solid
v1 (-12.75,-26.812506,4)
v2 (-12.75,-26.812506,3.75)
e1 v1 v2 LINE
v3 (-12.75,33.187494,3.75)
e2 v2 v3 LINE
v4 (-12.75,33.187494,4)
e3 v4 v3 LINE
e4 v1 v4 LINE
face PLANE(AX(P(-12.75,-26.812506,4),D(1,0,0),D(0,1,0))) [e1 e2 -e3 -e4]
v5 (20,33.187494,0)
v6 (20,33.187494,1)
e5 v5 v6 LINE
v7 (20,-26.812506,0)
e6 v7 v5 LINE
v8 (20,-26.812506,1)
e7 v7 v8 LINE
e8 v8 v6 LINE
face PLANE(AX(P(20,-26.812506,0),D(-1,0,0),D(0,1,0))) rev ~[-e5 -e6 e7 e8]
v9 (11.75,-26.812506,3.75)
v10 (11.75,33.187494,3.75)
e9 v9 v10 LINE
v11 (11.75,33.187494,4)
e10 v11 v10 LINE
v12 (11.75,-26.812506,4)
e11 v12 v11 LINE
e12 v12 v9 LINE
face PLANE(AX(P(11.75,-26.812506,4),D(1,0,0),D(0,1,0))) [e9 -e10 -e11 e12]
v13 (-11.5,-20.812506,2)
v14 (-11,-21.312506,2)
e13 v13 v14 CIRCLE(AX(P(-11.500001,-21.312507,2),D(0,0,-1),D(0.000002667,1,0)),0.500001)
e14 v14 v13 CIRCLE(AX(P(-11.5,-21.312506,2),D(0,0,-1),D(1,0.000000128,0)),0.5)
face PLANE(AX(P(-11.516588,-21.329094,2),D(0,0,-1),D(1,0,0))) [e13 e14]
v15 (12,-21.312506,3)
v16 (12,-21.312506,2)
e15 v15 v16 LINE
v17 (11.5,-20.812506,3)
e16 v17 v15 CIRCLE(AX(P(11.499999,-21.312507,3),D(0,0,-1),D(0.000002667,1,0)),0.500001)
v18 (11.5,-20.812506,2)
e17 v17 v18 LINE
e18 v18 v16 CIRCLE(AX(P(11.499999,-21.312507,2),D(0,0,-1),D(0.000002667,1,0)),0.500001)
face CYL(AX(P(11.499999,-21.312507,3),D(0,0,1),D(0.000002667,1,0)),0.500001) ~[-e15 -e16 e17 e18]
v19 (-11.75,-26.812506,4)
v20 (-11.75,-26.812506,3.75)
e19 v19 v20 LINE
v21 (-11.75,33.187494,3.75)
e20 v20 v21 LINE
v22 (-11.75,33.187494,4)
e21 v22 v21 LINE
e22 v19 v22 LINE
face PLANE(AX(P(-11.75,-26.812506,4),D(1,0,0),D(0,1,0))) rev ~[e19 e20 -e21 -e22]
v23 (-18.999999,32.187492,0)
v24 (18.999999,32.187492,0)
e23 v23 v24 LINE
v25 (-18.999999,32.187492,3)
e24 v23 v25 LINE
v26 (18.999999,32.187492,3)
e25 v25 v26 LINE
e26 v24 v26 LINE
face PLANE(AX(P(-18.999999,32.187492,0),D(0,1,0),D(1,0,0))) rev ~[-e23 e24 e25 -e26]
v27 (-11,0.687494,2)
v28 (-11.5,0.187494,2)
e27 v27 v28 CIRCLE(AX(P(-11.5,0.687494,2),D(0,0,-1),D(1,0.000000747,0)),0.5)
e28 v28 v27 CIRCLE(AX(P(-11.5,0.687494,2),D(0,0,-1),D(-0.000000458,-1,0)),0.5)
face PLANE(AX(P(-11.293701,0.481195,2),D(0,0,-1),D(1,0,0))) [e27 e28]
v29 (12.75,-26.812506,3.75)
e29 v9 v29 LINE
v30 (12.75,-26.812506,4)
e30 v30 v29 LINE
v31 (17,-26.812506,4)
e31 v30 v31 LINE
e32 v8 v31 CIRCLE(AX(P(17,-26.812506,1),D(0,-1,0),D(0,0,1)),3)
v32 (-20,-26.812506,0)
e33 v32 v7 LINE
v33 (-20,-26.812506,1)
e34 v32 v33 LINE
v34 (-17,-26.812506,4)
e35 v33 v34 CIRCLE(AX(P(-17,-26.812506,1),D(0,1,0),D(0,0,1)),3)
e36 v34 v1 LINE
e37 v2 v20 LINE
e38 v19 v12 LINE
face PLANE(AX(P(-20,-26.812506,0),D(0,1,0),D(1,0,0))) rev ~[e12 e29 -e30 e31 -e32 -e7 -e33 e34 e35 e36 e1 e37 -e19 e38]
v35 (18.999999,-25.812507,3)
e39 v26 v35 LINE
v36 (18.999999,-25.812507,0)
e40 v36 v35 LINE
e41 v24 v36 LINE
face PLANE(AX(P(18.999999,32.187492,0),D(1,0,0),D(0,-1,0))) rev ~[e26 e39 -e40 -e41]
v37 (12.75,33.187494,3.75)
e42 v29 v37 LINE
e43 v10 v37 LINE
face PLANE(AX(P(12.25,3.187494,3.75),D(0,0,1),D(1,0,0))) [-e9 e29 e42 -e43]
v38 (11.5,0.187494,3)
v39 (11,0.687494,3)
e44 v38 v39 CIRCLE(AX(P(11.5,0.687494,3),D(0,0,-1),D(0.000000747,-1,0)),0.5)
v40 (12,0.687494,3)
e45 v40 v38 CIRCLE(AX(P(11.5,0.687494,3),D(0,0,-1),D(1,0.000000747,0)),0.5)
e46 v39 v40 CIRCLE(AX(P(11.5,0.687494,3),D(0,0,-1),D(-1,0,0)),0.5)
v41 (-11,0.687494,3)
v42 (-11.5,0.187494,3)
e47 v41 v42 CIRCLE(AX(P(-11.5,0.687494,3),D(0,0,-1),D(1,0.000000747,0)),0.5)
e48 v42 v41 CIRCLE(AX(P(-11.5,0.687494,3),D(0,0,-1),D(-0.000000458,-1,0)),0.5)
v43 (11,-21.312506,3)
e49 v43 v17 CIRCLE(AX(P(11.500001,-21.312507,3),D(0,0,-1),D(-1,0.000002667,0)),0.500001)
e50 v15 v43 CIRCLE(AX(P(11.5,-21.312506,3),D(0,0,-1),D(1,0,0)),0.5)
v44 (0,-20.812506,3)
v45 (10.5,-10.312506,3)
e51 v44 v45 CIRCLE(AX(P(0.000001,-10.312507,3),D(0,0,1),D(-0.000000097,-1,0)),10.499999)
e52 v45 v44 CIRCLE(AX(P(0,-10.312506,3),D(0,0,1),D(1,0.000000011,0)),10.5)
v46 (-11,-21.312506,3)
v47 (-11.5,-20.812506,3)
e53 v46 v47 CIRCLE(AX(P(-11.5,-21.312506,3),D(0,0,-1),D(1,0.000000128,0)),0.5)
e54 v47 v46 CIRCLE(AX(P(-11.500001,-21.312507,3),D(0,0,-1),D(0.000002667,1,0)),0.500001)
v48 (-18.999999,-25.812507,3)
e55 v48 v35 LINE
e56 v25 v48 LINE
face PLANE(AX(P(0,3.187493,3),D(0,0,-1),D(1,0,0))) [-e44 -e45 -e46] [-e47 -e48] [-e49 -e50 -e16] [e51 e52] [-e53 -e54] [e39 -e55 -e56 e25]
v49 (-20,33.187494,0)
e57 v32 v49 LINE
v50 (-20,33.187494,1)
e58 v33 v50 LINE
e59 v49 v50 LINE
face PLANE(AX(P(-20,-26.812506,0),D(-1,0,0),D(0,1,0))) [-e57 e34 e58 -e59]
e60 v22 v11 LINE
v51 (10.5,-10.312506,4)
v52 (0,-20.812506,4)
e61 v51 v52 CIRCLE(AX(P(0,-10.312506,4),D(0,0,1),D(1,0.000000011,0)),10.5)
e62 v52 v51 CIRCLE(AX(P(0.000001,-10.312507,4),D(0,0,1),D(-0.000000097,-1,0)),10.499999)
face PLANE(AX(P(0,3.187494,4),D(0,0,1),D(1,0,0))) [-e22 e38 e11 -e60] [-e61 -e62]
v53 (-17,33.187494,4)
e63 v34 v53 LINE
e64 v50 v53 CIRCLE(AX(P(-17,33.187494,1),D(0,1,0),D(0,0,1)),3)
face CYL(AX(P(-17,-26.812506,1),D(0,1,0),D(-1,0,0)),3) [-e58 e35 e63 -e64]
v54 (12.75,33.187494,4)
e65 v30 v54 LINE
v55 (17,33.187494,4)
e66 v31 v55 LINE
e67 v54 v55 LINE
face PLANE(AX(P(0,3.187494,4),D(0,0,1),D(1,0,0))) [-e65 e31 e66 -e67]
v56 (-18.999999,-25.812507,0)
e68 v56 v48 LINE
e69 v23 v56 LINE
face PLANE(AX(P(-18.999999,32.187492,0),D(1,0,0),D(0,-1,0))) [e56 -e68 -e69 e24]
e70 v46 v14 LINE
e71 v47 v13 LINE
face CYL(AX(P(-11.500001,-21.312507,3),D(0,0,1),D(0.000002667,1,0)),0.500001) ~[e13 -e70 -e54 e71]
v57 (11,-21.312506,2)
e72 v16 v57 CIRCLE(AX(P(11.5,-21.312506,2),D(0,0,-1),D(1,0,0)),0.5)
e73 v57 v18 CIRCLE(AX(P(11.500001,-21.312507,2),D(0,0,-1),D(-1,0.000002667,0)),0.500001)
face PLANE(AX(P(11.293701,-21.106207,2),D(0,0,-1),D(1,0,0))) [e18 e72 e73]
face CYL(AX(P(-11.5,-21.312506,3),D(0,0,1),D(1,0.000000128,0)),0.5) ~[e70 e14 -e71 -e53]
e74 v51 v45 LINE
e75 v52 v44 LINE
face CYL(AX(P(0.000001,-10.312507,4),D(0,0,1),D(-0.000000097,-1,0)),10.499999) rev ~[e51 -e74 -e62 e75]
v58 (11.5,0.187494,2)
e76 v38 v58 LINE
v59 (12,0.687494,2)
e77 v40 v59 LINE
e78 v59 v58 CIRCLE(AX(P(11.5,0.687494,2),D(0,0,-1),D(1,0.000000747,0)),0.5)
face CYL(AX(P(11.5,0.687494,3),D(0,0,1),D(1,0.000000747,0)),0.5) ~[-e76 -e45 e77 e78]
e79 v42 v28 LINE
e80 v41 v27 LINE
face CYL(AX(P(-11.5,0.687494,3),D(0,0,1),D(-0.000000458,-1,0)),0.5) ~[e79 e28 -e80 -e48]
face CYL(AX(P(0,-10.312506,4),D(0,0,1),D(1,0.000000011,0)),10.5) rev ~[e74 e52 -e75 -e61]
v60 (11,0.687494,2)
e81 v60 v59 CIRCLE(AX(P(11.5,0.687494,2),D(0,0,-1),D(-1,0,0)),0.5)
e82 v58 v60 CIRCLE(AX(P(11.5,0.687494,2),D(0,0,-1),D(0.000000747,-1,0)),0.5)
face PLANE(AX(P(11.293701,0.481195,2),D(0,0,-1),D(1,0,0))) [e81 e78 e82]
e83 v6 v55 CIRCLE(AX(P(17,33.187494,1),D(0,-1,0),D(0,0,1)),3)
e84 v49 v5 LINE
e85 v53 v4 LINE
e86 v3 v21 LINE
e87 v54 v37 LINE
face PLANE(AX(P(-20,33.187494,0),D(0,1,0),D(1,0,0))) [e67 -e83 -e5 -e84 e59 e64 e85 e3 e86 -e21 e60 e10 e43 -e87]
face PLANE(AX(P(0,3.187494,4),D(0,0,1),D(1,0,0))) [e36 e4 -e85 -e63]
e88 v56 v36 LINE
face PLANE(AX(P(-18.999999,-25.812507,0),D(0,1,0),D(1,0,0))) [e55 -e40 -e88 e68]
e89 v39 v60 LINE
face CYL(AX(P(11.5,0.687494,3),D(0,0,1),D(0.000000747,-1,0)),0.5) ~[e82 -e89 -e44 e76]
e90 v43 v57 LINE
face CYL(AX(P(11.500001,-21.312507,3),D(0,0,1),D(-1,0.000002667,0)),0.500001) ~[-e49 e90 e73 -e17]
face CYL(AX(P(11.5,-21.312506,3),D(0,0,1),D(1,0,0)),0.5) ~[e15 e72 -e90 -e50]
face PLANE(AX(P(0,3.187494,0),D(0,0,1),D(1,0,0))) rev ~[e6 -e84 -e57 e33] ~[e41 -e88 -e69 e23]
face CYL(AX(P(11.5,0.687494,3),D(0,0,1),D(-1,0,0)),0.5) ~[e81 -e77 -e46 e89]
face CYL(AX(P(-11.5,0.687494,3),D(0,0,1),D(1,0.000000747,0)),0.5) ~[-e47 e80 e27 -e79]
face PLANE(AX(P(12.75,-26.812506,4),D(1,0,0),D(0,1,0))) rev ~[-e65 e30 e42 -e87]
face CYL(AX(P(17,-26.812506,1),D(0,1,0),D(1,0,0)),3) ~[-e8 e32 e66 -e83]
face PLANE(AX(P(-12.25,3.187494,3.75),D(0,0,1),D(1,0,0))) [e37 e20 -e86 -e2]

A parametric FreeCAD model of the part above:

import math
import FreeCAD as App
import Part
import Sketcher


def edges_at(feature, points):
    """Names of the edges that pass closest to the given points."""
    edges = feature.Shape.Edges
    near = lambda p: min(range(len(edges)), key=lambda i: edges[i].distToShape(Part.Vertex(*p))[0])
    return sorted({f"Edge{near(p) + 1}" for p in points})

doc = App.newDocument("Part")
params = doc.addObject("Spreadsheet::Sheet", "Params")
for row, (alias, value) in enumerate([
    ("sketch1_width", "40 mm"),
    ("sketch1_height", "60 mm"),
    ("pad1_length", "4 mm"),
    ("sketch2_width", "1 mm"),
    ("sketch2_height", "60 mm"),
    ("pocket1_length", "0.25 mm"),
    ("fillet_radius", "3 mm"),
    ("sketch3_radius", "10.499999 mm"),
    ("pocket2_length", "25 mm"),
    ("sketch4_height", "57.999999 mm"),
    ("pocket3_length", "3 mm"),
    ("sketch5_radius", "0.500001 mm"),
    ("pad2_length", "1 mm"),
], start=1):
    params.set(f"A{row}", alias)
    params.set(f"B{row}", "=" + value)
    params.setAlias(f"B{row}", alias)

body = doc.addObject("PartDesign::Body", "Body")

# Sketch on XY plane
sketch1 = body.newObject("Sketcher::SketchObject", "Sketch")
sketch1.AttachmentSupport = (doc.getObject("XY_Plane"), [""])
sketch1.MapMode = "FlatFace"
sketch1.addGeometry([
    Part.LineSegment(App.Vector(-20, 33, 0), App.Vector(-20, -27, 0)),
    Part.LineSegment(App.Vector(-20, -27, 0), App.Vector(20, -27, 0)),
    Part.LineSegment(App.Vector(20, -27, 0), App.Vector(20, 33, 0)),
    Part.LineSegment(App.Vector(20, 33, 0), App.Vector(-20, 33, 0)),
], False)
sketch1.addConstraint([
    Sketcher.Constraint("Coincident", 0, 2, 1, 1),
    Sketcher.Constraint("Coincident", 1, 2, 2, 1),
    Sketcher.Constraint("Coincident", 2, 2, 3, 1),
    Sketcher.Constraint("Coincident", 3, 2, 0, 1),
    Sketcher.Constraint("Vertical", 0),
    Sketcher.Constraint("Horizontal", 1),
    Sketcher.Constraint("Vertical", 2),
    Sketcher.Constraint("Horizontal", 3),
    Sketcher.Constraint("DistanceX", 1, 1, 1, 2, 40.0),
    Sketcher.Constraint("DistanceY", 0, 2, 0, 1, 60.0),
    Sketcher.Constraint("DistanceX", 0, 2, -1, 1, 20.0),
    Sketcher.Constraint("DistanceY", 0, 2, -1, 1, 26.812506),
])
sketch1.setExpression("Constraints[8]", "Params.sketch1_width")
sketch1.setExpression("Constraints[9]", "Params.sketch1_height")
pad1 = body.newObject("PartDesign::Pad", "Pad")
pad1.Profile = sketch1
pad1.setExpression("Length", "Params.pad1_length")

# Sketch on XY plane
sketch2 = body.newObject("Sketcher::SketchObject", "Sketch001")
sketch2.AttachmentSupport = (doc.getObject("XY_Plane"), [""])
sketch2.MapMode = "FlatFace"
sketch2.AttachmentOffset = App.Placement(App.Vector(0, 0, 4), App.Rotation())
sketch2.addGeometry([
    Part.LineSegment(App.Vector(-12.8, 33.2, 0), App.Vector(-12.8, -26.8, 0)),  # 0
    Part.LineSegment(App.Vector(-12.8, -26.8, 0), App.Vector(-11.8, -26.8, 0)),  # 1
    Part.LineSegment(App.Vector(-11.8, -26.8, 0), App.Vector(-11.8, 33.2, 0)),  # 2
    Part.LineSegment(App.Vector(-11.8, 33.2, 0), App.Vector(-12.8, 33.2, 0)),  # 3
    Part.LineSegment(App.Vector(11.8, 33.2, 0), App.Vector(11.8, -26.8, 0)),  # 4
    Part.LineSegment(App.Vector(11.8, -26.8, 0), App.Vector(12.8, -26.8, 0)),  # 5
    Part.LineSegment(App.Vector(12.8, -26.8, 0), App.Vector(12.8, 33.2, 0)),  # 6
    Part.LineSegment(App.Vector(12.8, 33.2, 0), App.Vector(11.8, 33.2, 0)),  # 7
], False)
sketch2.addConstraint([
    Sketcher.Constraint("Coincident", 0, 2, 1, 1),
    Sketcher.Constraint("Coincident", 1, 2, 2, 1),
    Sketcher.Constraint("Coincident", 2, 2, 3, 1),
    Sketcher.Constraint("Coincident", 3, 2, 0, 1),
    Sketcher.Constraint("Coincident", 4, 2, 5, 1),
    Sketcher.Constraint("Coincident", 5, 2, 6, 1),
    Sketcher.Constraint("Coincident", 6, 2, 7, 1),
    Sketcher.Constraint("Coincident", 7, 2, 4, 1),
    Sketcher.Constraint("Vertical", 0),
    Sketcher.Constraint("Horizontal", 1),
    Sketcher.Constraint("Vertical", 2),
    Sketcher.Constraint("Horizontal", 3),
    Sketcher.Constraint("Vertical", 4),
    Sketcher.Constraint("Horizontal", 5),
    Sketcher.Constraint("Vertical", 6),
    Sketcher.Constraint("Horizontal", 7),
    Sketcher.Constraint("Symmetric", 1, 2, 4, 2, -2),
    Sketcher.Constraint("Symmetric", 3, 2, 6, 2, -2),
    Sketcher.Constraint("DistanceX", 1, 1, 1, 2, 1.0),
    Sketcher.Constraint("DistanceY", 0, 2, 0, 1, 60.0),
    Sketcher.Constraint("DistanceX", 1, 2, 4, 2, 23.5),
    Sketcher.Constraint("DistanceY", 0, 2, -1, 1, 26.812506),
])
sketch2.setExpression("Constraints[18]", "Params.sketch2_width")
sketch2.setExpression("Constraints[19]", "Params.sketch2_height")
pocket1 = body.newObject("PartDesign::Pocket", "Pocket")
pocket1.Profile = sketch2
pocket1.setExpression("Length", "Params.pocket1_length")
doc.recompute()

fillet = body.newObject("PartDesign::Fillet", "Fillet")
fillet.Base = (pocket1, edges_at(pocket1, [(-20, 3.187, 4), (20, 3.187, 4)]))
fillet.setExpression("Radius", "Params.fillet_radius")

# Sketch on XY plane
sketch3 = body.newObject("Sketcher::SketchObject", "Sketch002")
sketch3.AttachmentSupport = (doc.getObject("XY_Plane"), [""])
sketch3.MapMode = "FlatFace"
sketch3.AttachmentOffset = App.Placement(App.Vector(0, 0, 4), App.Rotation())
sketch3.addGeometry([
    Part.ArcOfCircle(Part.Circle(App.Vector(0, -10, 0), App.Vector(0, 0, 1), 10), math.radians(-90), math.radians(0)),
    Part.ArcOfCircle(Part.Circle(App.Vector(0, -10, 0), App.Vector(0, 0, 1), 10), math.radians(0), math.radians(270)),
], False)
sketch3.addConstraint([
    Sketcher.Constraint("Tangent", 0, 1, 1, 2),
    Sketcher.Constraint("Coincident", 1, 1, 0, 2),
    Sketcher.Constraint("PointOnObject", 0, 3, -2),
    Sketcher.Constraint("PointOnObject", 0, 1, -2),
    Sketcher.Constraint("Horizontal", 0, 3, 1, 1),
    Sketcher.Constraint("Radius", 0, 10.499999),
    Sketcher.Constraint("DistanceY", 0, 3, -1, 1, 10.312507),
])
sketch3.setExpression("Constraints[5]", "Params.sketch3_radius")
pocket2 = body.newObject("PartDesign::Pocket", "Pocket001")
pocket2.Profile = sketch3
pocket2.setExpression("Length", "Params.pocket2_length")

# Sketch on XY plane
sketch4 = body.newObject("Sketcher::SketchObject", "Sketch003")
sketch4.AttachmentSupport = (doc.getObject("XY_Plane"), [""])
sketch4.MapMode = "FlatFace"
sketch4.addGeometry([
    Part.LineSegment(App.Vector(-19, -26, 0), App.Vector(-19, 32, 0)),
    Part.LineSegment(App.Vector(-19, 32, 0), App.Vector(19, 32, 0)),
    Part.LineSegment(App.Vector(19, 32, 0), App.Vector(19, -26, 0)),
    Part.LineSegment(App.Vector(19, -26, 0), App.Vector(-19, -26, 0)),
], False)
sketch4.addConstraint([
    Sketcher.Constraint("Coincident", 0, 2, 1, 1),
    Sketcher.Constraint("Coincident", 1, 2, 2, 1),
    Sketcher.Constraint("Coincident", 2, 2, 3, 1),
    Sketcher.Constraint("Coincident", 3, 2, 0, 1),
    Sketcher.Constraint("Vertical", 0),
    Sketcher.Constraint("Horizontal", 1),
    Sketcher.Constraint("Vertical", 2),
    Sketcher.Constraint("Horizontal", 3),
    Sketcher.Constraint("DistanceY", 0, 1, 0, 2, 57.999999),
    Sketcher.Constraint("DistanceX", 0, 2, -1, 1, 18.999999),
    Sketcher.Constraint("DistanceX", -1, 1, 1, 2, 18.999999),
    Sketcher.Constraint("DistanceY", -1, 1, 0, 2, 32.187492),
])
sketch4.setExpression("Constraints[8]", "Params.sketch4_height")
pocket3 = body.newObject("PartDesign::Pocket", "Pocket002")
pocket3.Profile = sketch4
pocket3.setExpression("Length", "Params.pocket3_length")
pocket3.Reversed = True

# Sketch on XY plane
sketch5 = body.newObject("Sketcher::SketchObject", "Sketch004")
sketch5.AttachmentSupport = (doc.getObject("XY_Plane"), [""])
sketch5.MapMode = "FlatFace"
sketch5.AttachmentOffset = App.Placement(App.Vector(0, 0, 3), App.Rotation())
sketch5.addGeometry([
    Part.ArcOfCircle(Part.Circle(App.Vector(11.5, -21.31, 0), App.Vector(0, 0, 1), 0.5), math.radians(90), math.radians(180)),  # 0
    Part.ArcOfCircle(Part.Circle(App.Vector(11.5, -21.31, 0), App.Vector(0, 0, 1), 0.5), math.radians(0), math.radians(90)),  # 1
    Part.ArcOfCircle(Part.Circle(App.Vector(11.5, -21.31, 0), App.Vector(0, 0, 1), 0.5), math.radians(180), math.radians(360)),  # 2
    Part.ArcOfCircle(Part.Circle(App.Vector(-11.5, -21.31, 0), App.Vector(0, 0, 1), 0.5), math.radians(90), math.radians(360)),  # 3
    Part.ArcOfCircle(Part.Circle(App.Vector(-11.5, -21.31, 0), App.Vector(0, 0, 1), 0.5), math.radians(0), math.radians(90)),  # 4
    Part.ArcOfCircle(Part.Circle(App.Vector(11.5, 0.69, 0), App.Vector(0, 0, 1), 0.5), math.radians(180), math.radians(270)),  # 5
    Part.ArcOfCircle(Part.Circle(App.Vector(11.5, 0.69, 0), App.Vector(0, 0, 1), 0.5), math.radians(0), math.radians(180)),  # 6
    Part.ArcOfCircle(Part.Circle(App.Vector(11.5, 0.69, 0), App.Vector(0, 0, 1), 0.5), math.radians(-90), math.radians(0)),  # 7
    Part.ArcOfCircle(Part.Circle(App.Vector(-11.5, 0.69, 0), App.Vector(0, 0, 1), 0.5), math.radians(-90), math.radians(0)),  # 8
    Part.ArcOfCircle(Part.Circle(App.Vector(-11.5, 0.69, 0), App.Vector(0, 0, 1), 0.5), math.radians(0), math.radians(270)),  # 9
], False)
sketch5.addConstraint([
    Sketcher.Constraint("Coincident", 0, 1, 1, 2),
    Sketcher.Constraint("Coincident", 1, 1, 2, 2),
    Sketcher.Constraint("Coincident", 2, 1, 0, 2),
    Sketcher.Constraint("Coincident", 3, 1, 4, 2),
    Sketcher.Constraint("Coincident", 4, 1, 3, 2),
    Sketcher.Constraint("Tangent", 5, 1, 6, 2),
    Sketcher.Constraint("Tangent", 6, 1, 7, 2),
    Sketcher.Constraint("Tangent", 7, 1, 5, 2),
    Sketcher.Constraint("Tangent", 8, 1, 9, 2),
    Sketcher.Constraint("Coincident", 9, 1, 8, 2),
    Sketcher.Constraint("Coincident", 1, 3, 0, 3),
    Sketcher.Constraint("Equal", 2, 3),
    Sketcher.Constraint("Equal", 3, 4),
    Sketcher.Constraint("Equal", 4, 5),
    Sketcher.Constraint("Equal", 7, 8),
    Sketcher.Constraint("Symmetric", 0, 3, 3, 3, -2),
    Sketcher.Constraint("Symmetric", 5, 3, 8, 3, -2),
    Sketcher.Constraint("Horizontal", 2, 3, 3, 3),
    Sketcher.Constraint("Horizontal", 4, 3, 1, 1),
    Sketcher.Constraint("Horizontal", 1, 1, 2, 1),
    Sketcher.Constraint("Horizontal", 2, 1, 4, 1),
    Sketcher.Constraint("Horizontal", 9, 3, 5, 1),
    Sketcher.Constraint("Horizontal", 5, 1, 6, 1),
    Sketcher.Constraint("Horizontal", 6, 1, 9, 1),
    Sketcher.Constraint("Vertical", 2, 3, 5, 3),
    Sketcher.Constraint("Vertical", 7, 3, 0, 1),
    Sketcher.Constraint("Vertical", 9, 3, 3, 1),
    Sketcher.Constraint("Vertical", 0, 1, 7, 1),
    Sketcher.Constraint("Vertical", 3, 1, 8, 1),
    Sketcher.Constraint("Radius", 0, 0.500001),
    Sketcher.Constraint("DistanceX", -1, 1, 1, 1, 12.0),
    Sketcher.Constraint("DistanceY", 2, 3, 5, 3, 22.0),
    Sketcher.Constraint("DistanceY", 0, 3, -1, 1, 21.312507),
])
sketch5.setExpression("Constraints[29]", "Params.sketch5_radius")
pad2 = body.newObject("PartDesign::Pad", "Pad001")
pad2.Profile = sketch5
pad2.setExpression("Length", "Params.pad2_length")
pad2.Reversed = True

doc.recompute()
